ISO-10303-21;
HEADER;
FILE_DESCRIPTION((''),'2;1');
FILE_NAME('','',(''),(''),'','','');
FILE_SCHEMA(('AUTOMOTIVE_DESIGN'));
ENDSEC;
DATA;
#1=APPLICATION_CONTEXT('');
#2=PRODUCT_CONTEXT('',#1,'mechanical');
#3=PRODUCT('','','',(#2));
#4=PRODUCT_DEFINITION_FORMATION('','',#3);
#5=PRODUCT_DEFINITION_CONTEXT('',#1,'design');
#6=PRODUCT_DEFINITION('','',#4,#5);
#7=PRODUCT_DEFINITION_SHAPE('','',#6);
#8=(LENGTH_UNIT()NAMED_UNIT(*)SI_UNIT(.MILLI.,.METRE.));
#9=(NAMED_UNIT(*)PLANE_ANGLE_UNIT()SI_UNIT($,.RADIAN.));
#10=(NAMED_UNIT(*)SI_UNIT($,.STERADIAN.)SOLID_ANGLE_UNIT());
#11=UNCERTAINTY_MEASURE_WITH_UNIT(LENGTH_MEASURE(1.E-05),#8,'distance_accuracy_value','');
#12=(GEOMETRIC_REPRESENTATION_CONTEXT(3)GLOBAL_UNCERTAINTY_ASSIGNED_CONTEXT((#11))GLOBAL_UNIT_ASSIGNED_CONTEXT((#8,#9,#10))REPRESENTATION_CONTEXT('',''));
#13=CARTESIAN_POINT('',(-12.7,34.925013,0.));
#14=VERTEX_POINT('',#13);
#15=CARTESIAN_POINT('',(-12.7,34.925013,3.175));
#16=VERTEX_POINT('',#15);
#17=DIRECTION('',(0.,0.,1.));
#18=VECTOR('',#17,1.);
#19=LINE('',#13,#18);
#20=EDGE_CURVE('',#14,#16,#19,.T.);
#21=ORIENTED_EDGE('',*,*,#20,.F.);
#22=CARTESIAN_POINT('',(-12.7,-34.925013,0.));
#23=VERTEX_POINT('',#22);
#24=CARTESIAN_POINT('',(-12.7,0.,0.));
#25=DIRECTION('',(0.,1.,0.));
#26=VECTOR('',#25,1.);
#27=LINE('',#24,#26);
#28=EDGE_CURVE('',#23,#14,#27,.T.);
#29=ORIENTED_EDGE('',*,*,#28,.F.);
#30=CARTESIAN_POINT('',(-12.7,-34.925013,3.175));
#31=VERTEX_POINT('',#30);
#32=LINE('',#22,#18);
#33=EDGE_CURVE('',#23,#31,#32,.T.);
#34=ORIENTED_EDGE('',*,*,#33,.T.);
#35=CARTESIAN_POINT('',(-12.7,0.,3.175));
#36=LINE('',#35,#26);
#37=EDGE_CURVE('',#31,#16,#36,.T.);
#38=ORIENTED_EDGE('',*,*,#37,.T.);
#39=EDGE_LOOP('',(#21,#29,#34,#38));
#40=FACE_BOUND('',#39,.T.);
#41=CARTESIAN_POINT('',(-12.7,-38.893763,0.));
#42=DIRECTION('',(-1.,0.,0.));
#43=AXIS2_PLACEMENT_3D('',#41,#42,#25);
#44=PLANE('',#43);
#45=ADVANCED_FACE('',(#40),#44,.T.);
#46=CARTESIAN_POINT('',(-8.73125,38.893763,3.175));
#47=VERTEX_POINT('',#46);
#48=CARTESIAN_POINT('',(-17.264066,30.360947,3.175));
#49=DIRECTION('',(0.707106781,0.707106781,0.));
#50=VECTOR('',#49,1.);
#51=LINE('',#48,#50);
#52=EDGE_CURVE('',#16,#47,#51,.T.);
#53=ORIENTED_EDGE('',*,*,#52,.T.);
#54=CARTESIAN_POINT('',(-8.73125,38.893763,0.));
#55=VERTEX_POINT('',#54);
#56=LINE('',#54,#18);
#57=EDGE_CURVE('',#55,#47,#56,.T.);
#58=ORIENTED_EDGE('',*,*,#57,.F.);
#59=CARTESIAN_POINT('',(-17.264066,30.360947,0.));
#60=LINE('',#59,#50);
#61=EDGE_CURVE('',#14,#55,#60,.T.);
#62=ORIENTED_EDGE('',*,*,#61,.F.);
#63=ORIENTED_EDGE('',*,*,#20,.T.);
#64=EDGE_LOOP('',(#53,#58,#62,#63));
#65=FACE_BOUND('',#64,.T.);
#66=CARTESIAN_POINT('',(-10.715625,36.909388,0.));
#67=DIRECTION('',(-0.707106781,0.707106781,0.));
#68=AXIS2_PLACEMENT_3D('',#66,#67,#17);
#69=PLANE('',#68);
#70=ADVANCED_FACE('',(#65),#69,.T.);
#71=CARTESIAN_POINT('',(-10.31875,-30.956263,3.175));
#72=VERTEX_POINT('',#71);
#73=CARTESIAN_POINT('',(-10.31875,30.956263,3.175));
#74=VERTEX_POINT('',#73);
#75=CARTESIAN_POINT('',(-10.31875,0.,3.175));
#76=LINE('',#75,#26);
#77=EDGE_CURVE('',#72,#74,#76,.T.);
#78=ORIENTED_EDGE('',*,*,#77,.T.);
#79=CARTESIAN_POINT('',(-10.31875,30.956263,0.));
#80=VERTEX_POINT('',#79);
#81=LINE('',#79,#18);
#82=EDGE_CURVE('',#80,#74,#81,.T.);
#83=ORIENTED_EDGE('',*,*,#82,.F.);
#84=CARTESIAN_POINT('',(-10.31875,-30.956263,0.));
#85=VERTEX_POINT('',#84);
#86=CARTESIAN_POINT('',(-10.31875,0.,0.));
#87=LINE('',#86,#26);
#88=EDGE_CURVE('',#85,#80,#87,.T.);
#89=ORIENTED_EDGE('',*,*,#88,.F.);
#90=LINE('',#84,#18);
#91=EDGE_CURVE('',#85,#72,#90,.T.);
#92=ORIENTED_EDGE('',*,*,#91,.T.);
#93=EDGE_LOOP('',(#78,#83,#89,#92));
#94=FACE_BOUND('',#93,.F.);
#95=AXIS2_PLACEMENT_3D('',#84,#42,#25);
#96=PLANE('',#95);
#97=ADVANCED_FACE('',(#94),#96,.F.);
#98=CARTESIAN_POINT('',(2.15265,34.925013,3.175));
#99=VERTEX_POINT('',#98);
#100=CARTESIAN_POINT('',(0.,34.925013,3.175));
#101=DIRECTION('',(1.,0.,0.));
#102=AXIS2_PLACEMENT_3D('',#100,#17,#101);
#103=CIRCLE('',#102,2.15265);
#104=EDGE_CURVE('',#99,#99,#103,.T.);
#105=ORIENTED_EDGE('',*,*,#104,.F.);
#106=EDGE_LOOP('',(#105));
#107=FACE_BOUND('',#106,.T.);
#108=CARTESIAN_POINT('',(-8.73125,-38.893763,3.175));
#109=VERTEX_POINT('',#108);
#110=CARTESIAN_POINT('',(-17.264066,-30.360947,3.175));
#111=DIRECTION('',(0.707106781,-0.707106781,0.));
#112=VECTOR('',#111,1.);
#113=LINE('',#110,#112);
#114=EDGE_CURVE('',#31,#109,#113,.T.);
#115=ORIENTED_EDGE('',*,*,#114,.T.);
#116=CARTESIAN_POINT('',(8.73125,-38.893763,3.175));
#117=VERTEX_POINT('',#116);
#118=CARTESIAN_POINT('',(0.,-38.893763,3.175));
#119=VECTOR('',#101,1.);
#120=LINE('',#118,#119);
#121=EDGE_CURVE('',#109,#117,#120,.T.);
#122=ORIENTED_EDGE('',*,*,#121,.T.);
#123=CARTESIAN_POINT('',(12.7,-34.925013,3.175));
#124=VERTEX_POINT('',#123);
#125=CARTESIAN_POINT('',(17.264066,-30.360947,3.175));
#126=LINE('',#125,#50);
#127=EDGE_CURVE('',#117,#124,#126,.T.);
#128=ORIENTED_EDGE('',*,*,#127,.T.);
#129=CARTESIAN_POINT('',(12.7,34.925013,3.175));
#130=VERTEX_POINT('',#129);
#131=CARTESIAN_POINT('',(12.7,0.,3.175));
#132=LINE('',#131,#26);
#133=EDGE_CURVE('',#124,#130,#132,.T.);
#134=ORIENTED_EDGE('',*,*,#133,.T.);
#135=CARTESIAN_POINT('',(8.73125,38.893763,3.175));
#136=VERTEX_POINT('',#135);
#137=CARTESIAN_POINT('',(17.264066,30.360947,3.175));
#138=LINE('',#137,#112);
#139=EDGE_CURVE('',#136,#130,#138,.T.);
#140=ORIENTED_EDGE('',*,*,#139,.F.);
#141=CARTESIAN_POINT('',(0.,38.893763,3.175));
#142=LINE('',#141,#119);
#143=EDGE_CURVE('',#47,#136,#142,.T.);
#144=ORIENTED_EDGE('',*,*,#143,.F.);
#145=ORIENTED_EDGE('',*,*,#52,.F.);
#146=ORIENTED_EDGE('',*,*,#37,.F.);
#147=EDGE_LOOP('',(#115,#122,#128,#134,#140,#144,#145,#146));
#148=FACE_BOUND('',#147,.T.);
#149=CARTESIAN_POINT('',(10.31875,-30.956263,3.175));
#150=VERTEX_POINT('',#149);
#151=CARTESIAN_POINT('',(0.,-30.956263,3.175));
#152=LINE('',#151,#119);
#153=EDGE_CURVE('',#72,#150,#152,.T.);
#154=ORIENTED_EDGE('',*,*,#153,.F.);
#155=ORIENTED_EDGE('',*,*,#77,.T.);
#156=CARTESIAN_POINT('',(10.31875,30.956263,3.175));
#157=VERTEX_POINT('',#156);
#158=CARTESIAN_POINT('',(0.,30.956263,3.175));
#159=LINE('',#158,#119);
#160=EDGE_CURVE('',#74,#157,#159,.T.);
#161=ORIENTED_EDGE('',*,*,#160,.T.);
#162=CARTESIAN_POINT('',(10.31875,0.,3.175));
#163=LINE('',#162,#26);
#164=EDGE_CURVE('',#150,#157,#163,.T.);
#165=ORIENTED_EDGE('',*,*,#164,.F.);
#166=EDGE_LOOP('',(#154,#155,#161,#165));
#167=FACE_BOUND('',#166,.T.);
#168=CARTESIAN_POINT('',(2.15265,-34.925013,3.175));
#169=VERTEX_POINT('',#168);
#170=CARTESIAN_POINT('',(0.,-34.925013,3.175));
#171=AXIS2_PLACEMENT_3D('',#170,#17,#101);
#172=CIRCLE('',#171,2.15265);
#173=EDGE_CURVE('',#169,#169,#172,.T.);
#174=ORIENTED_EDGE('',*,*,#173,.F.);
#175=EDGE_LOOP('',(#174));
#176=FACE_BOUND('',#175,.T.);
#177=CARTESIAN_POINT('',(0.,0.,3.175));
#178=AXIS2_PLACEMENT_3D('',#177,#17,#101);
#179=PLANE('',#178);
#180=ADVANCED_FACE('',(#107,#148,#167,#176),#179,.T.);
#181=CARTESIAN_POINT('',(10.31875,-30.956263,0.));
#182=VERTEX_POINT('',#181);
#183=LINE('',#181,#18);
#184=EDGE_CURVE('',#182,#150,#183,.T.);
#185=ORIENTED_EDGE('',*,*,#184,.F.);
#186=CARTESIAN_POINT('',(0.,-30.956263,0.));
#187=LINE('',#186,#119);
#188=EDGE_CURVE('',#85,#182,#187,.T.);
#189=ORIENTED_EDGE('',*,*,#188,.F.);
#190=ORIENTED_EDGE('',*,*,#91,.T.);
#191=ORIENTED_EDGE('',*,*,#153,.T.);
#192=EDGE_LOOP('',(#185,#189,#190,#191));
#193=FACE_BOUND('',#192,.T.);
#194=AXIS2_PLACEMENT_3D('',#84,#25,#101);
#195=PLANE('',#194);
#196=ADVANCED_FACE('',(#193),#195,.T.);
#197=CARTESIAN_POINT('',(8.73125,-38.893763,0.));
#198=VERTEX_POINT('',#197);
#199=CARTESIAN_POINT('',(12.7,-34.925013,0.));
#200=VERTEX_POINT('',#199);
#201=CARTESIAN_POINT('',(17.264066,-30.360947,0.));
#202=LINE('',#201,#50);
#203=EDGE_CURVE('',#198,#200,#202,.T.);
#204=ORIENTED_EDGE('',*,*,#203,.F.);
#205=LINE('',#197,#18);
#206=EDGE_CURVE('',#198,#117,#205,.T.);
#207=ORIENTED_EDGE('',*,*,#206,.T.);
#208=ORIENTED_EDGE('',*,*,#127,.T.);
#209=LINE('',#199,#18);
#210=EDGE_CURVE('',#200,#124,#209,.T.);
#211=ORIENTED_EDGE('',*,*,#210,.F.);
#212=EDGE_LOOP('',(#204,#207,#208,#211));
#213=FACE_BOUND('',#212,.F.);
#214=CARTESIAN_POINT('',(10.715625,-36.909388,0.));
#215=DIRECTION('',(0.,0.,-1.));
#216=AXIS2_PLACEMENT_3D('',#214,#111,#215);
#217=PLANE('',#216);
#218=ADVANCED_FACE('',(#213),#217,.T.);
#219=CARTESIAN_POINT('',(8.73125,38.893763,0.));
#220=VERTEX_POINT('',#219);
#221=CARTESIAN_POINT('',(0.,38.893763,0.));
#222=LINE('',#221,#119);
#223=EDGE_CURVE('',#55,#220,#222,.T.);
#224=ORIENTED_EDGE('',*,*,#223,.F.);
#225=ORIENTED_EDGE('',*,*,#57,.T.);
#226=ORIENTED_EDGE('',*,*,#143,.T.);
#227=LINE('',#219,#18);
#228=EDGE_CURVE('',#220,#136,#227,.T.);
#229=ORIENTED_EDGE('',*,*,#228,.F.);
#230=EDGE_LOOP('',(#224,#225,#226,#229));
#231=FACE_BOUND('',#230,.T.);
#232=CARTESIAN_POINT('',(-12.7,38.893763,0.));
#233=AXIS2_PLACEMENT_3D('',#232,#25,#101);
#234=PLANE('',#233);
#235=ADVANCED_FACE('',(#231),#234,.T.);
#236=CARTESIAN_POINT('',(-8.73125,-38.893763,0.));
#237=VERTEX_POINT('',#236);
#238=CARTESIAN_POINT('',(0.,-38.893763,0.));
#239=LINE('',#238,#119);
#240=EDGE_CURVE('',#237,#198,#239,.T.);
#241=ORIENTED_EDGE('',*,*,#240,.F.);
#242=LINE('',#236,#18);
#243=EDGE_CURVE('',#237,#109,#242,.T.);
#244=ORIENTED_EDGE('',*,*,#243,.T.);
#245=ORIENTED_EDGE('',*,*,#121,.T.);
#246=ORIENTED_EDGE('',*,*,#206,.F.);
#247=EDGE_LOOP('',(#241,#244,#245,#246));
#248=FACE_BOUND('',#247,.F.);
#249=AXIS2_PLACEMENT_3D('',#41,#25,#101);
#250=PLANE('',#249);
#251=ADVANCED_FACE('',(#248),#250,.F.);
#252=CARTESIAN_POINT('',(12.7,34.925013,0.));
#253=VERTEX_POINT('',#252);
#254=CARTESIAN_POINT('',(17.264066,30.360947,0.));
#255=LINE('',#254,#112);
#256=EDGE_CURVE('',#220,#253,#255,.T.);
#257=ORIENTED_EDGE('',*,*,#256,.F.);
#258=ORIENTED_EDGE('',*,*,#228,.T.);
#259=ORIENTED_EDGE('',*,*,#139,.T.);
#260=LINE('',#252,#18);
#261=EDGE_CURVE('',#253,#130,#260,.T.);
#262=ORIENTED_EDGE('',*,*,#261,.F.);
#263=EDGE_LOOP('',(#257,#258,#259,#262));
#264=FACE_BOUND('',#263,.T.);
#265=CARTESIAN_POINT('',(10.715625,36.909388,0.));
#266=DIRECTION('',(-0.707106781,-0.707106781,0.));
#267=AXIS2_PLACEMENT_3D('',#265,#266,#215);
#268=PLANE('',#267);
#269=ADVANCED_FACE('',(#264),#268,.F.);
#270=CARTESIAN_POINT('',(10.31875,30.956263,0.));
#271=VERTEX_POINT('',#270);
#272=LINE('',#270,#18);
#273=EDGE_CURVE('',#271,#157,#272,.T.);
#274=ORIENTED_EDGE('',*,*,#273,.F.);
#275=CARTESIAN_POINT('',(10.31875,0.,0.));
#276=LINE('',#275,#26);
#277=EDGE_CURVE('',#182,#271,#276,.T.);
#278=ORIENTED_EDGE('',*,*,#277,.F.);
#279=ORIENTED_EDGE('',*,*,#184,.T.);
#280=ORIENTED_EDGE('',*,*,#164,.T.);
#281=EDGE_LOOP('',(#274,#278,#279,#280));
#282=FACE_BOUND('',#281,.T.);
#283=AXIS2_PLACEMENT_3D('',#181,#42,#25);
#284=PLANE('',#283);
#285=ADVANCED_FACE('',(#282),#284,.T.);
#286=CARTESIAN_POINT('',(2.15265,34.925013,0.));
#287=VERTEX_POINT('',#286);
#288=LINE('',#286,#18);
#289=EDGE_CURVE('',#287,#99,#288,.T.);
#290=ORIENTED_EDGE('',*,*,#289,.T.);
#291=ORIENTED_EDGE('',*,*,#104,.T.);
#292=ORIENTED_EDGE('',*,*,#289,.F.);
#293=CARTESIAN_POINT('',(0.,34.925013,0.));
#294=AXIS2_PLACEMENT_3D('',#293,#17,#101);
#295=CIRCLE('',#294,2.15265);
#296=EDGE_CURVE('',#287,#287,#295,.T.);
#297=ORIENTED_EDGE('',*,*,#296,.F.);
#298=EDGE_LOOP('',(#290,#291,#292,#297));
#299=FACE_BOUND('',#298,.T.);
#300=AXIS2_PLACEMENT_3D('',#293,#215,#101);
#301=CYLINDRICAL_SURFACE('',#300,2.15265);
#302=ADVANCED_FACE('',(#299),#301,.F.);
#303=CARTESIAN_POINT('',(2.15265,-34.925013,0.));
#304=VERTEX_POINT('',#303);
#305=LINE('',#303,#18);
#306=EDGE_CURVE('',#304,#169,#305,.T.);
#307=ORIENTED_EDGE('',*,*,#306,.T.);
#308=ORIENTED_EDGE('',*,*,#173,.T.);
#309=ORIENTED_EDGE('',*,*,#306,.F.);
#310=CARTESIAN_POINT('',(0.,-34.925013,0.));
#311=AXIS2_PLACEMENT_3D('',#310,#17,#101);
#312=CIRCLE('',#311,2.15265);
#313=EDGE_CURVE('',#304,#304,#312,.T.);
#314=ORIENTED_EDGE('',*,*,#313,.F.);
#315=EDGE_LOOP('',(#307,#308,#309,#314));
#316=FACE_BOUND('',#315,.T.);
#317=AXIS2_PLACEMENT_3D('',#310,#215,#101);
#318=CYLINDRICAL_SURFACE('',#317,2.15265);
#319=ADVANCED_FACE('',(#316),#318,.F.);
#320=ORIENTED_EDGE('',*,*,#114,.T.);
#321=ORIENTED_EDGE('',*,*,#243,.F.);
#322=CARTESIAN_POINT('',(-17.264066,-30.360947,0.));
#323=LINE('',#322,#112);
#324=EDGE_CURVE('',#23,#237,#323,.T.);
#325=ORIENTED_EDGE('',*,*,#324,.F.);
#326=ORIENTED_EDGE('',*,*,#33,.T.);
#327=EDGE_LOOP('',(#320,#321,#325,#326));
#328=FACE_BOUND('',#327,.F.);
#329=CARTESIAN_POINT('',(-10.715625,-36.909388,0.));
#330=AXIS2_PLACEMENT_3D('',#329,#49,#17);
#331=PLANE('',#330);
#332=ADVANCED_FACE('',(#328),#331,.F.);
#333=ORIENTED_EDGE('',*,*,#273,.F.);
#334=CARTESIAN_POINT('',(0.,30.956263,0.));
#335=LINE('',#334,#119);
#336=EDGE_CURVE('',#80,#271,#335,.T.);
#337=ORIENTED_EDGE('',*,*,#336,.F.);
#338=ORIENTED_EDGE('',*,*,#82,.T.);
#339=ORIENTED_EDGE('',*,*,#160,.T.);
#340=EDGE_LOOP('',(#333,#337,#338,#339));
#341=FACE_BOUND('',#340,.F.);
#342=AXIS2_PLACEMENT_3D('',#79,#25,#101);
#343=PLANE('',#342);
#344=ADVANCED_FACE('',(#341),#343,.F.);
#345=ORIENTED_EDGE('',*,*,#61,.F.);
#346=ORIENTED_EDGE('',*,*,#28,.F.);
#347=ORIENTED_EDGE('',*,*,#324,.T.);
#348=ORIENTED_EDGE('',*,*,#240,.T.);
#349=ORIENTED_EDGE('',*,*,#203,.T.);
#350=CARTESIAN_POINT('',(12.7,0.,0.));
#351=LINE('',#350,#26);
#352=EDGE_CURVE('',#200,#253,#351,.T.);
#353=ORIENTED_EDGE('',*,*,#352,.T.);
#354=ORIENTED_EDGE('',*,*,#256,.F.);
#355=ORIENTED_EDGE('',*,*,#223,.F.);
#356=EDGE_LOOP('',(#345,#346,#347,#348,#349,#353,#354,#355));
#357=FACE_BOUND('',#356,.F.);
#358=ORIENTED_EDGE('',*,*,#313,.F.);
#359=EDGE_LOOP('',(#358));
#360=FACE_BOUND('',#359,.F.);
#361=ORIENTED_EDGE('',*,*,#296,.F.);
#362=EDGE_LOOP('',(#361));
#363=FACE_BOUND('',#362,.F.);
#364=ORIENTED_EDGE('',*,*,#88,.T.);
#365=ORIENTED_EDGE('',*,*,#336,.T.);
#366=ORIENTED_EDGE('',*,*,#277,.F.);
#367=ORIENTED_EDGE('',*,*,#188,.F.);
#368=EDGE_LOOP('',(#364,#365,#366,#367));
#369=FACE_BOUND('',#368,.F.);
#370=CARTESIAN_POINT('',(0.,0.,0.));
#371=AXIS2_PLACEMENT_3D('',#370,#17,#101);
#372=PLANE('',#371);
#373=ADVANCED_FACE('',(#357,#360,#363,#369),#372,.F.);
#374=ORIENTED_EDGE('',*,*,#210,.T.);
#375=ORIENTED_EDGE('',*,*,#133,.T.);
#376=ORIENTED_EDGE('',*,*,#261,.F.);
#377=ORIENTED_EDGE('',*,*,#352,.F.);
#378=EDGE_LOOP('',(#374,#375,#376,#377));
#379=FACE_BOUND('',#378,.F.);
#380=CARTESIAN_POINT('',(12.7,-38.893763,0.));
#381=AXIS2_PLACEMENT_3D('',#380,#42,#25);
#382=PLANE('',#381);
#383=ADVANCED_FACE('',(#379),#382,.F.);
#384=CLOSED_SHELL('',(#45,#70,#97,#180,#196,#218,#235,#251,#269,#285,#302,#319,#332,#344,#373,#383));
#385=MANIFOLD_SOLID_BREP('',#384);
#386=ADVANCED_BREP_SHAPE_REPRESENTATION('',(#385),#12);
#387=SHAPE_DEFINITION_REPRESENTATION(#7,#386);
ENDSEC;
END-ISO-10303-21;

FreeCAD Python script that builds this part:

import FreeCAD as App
import Part
import Sketcher
Q = App.Units.Quantity


def edges_at(feature, points):
    """Names of the edges that pass closest to the given points."""
    edges = feature.Shape.Edges
    near = lambda p: min(range(len(edges)), key=lambda i: edges[i].distToShape(Part.Vertex(*p))[0])
    return sorted({f"Edge{near(p) + 1}" for p in points})


def add_polygon(sketch, points):
    """Adds a closed chain of lines whose ends are joined by coincident constraints."""
    first, n = sketch.GeometryCount, len(points)
    for a, b in zip(points, points[1:] + points[:1]):
        sketch.addGeometry(Part.LineSegment(App.Vector(*a, 0), App.Vector(*b, 0)), False)
    for i in range(n):
        sketch.addConstraint(Sketcher.Constraint("Coincident", first + i, 2, first + (i + 1) % n, 1))

doc = App.newDocument("Part")
body = doc.addObject("PartDesign::Body", "Body")

# Sketch on XY plane
sketch1 = doc.addObject("Sketcher::SketchObject", "Sketch")
body.addObject(sketch1)
sketch1.AttachmentSupport = (doc.XY_Plane, [""])
sketch1.MapMode = "FlatFace"
add_polygon(sketch1, [(-12.7, 38.893763), (-12.7, -38.893763), (12.7, -38.893763), (12.7, 38.893763)])  # lines 0-3
sketch1.addGeometry(Part.Circle(App.Vector(0, -34.925013, 0), App.Vector(0, 0, 1), 2.15265), False)  # 4
add_polygon(sketch1, [(10.31875, -30.956263), (-10.31875, -30.956263), (-10.31875, 30.956263), (10.31875, 30.956263)])  # lines 5-8
sketch1.addGeometry(Part.Circle(App.Vector(0, 34.925013, 0), App.Vector(0, 0, 1), 2.15265), False)  # 9
sketch1.addConstraint([
    Sketcher.Constraint("Vertical", 0),
    Sketcher.Constraint("Horizontal", 1),
    Sketcher.Constraint("Vertical", 2),
    Sketcher.Constraint("Horizontal", 3),
    Sketcher.Constraint("Horizontal", 5),
    Sketcher.Constraint("Vertical", 6),
    Sketcher.Constraint("Horizontal", 7),
    Sketcher.Constraint("Vertical", 8),
    Sketcher.Constraint("Equal", 4, 9),
    Sketcher.Constraint("Symmetric", 4, 3, 9, 3, -1, 1),
    Sketcher.Constraint("Symmetric", 0, 2, 2, 2, -1, 1),
    Sketcher.Constraint("Symmetric", 5, 2, 7, 2, -1, 1),
    Sketcher.Constraint("PointOnObject", 4, 3, -2),
    Sketcher.Constraint("DistanceX", 1, 1, 1, 2, Q("1 in")),
    Sketcher.Constraint("Diameter", 4, Q("0.1695 in")),
    Sketcher.Constraint("DistanceX", 5, 2, 5, 1, Q("0.8125 in")),
    Sketcher.Constraint("DistanceY", 0, 2, 4, 3, Q("0.15625 in")),
    Sketcher.Constraint("DistanceY", 0, 2, 5, 2, Q("0.3125 in")),
    Sketcher.Constraint("DistanceY", 0, 2, 0, 1, 77.787526),
])
pad1 = doc.addObject("PartDesign::Pad", "Pad")
body.addObject(pad1)
pad1.Profile = sketch1
pad1.Length = Q("0.125 in")
doc.recompute()

chamfer = doc.addObject("PartDesign::Chamfer", "Chamfer")
body.addObject(chamfer)
chamfer.Base = (pad1, edges_at(pad1, [
    (-12.7, -38.894, 1.587),
    (12.7, -38.894, 1.587),
    (12.7, 38.894, 1.587),
    (-12.7, 38.894, 1.587),
]))
chamfer.Size = Q("0.15625 in")

doc.recompute()
